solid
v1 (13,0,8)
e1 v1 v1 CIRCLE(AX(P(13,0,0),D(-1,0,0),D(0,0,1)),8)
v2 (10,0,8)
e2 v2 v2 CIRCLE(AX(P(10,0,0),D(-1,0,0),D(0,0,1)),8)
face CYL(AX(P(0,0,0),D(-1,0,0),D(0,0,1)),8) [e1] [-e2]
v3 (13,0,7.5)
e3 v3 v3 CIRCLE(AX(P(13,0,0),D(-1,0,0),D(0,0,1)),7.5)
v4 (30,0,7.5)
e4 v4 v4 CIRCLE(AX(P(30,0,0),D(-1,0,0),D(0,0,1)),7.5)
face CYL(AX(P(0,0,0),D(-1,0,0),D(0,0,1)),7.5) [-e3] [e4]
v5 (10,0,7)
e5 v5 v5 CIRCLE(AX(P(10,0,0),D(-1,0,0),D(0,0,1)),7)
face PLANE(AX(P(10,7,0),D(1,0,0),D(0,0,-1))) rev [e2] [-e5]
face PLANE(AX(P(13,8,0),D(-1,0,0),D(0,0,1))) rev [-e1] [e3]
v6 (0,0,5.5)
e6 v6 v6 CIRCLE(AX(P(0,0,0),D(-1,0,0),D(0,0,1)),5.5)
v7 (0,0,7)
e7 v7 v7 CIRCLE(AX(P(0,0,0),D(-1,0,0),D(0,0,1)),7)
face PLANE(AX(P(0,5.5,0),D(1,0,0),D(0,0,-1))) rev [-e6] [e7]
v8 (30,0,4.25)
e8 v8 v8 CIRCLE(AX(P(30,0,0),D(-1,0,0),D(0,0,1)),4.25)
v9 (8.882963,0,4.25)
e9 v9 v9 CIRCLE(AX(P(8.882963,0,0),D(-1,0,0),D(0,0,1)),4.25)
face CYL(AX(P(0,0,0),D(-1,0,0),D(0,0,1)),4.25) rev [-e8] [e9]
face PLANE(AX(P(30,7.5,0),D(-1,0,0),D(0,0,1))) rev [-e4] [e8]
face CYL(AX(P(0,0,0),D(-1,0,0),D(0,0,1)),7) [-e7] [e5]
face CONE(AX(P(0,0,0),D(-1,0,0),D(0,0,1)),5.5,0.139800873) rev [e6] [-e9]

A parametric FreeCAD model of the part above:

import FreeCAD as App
import Part
import Sketcher
Q = App.Units.Quantity

doc = App.newDocument("Part")
body = doc.addObject("PartDesign::Body", "Body")

sketch1 = body.newObject("Sketcher::SketchObject", "Sketch")
sketch1.AttachmentSupport = (doc.getObject("XY_Plane"), [""])
sketch1.MapMode = "FlatFace"
sketch1.addGeometry([
    Part.LineSegment(App.Vector(0, 7, 0), App.Vector(0, 5.5, 0)),
    Part.LineSegment(App.Vector(0, 5.5, 0), App.Vector(8.9, 4.2, 0)),
    Part.LineSegment(App.Vector(8.9, 4.2, 0), App.Vector(30, 4.2, 0)),
    Part.LineSegment(App.Vector(30, 4.2, 0), App.Vector(30, 7.5, 0)),
    Part.LineSegment(App.Vector(30, 7.5, 0), App.Vector(13, 7.5, 0)),
    Part.LineSegment(App.Vector(13, 7.5, 0), App.Vector(13, 8, 0)),
    Part.LineSegment(App.Vector(13, 8, 0), App.Vector(10, 8, 0)),
    Part.LineSegment(App.Vector(10, 8, 0), App.Vector(10, 7, 0)),
    Part.LineSegment(App.Vector(10, 7, 0), App.Vector(0, 7, 0)),
], False)
sketch1.addConstraint([
    Sketcher.Constraint("Coincident", 0, 2, 1, 1),
    Sketcher.Constraint("Coincident", 1, 2, 2, 1),
    Sketcher.Constraint("Coincident", 2, 2, 3, 1),
    Sketcher.Constraint("Coincident", 3, 2, 4, 1),
    Sketcher.Constraint("Coincident", 4, 2, 5, 1),
    Sketcher.Constraint("Coincident", 5, 2, 6, 1),
    Sketcher.Constraint("Coincident", 6, 2, 7, 1),
    Sketcher.Constraint("Coincident", 7, 2, 8, 1),
    Sketcher.Constraint("Coincident", 8, 2, 0, 1),
    Sketcher.Constraint("Vertical", 0),
    Sketcher.Constraint("Horizontal", 2),
    Sketcher.Constraint("Vertical", 3),
    Sketcher.Constraint("Horizontal", 4),
    Sketcher.Constraint("Vertical", 5),
    Sketcher.Constraint("Horizontal", 6),
    Sketcher.Constraint("Vertical", 7),
    Sketcher.Constraint("Horizontal", 8),
    Sketcher.Constraint("PointOnObject", 0, 2, -2),
    Sketcher.Constraint("DistanceX", 4, 2, 4, 1, 17.0),
    Sketcher.Constraint("DistanceX", 6, 2, 6, 1, 3.0),
    Sketcher.Constraint("DistanceX", 8, 2, 8, 1, 10.0),
    Sketcher.Constraint("DistanceY", 7, 2, 7, 1, 1.0),
    Sketcher.Constraint("DistanceY", 0, 2, 0, 1, 1.5),
    Sketcher.Constraint("DistanceY", 5, 1, 5, 2, 0.5),
    Sketcher.Constraint("DistanceY", -1, 1, 5, 2, 8.0),
    Sketcher.Constraint("DistanceY", 3, 1, 3, 2, 3.25),
    Sketcher.Constraint("Angle", 1, Q("-8.01 deg")),
])
revolution = body.newObject("PartDesign::Revolution", "Revolution")
revolution.Profile = sketch1
revolution.ReferenceAxis = (sketch1, ["H_Axis"])
revolution.Angle = 360

doc.recompute()
